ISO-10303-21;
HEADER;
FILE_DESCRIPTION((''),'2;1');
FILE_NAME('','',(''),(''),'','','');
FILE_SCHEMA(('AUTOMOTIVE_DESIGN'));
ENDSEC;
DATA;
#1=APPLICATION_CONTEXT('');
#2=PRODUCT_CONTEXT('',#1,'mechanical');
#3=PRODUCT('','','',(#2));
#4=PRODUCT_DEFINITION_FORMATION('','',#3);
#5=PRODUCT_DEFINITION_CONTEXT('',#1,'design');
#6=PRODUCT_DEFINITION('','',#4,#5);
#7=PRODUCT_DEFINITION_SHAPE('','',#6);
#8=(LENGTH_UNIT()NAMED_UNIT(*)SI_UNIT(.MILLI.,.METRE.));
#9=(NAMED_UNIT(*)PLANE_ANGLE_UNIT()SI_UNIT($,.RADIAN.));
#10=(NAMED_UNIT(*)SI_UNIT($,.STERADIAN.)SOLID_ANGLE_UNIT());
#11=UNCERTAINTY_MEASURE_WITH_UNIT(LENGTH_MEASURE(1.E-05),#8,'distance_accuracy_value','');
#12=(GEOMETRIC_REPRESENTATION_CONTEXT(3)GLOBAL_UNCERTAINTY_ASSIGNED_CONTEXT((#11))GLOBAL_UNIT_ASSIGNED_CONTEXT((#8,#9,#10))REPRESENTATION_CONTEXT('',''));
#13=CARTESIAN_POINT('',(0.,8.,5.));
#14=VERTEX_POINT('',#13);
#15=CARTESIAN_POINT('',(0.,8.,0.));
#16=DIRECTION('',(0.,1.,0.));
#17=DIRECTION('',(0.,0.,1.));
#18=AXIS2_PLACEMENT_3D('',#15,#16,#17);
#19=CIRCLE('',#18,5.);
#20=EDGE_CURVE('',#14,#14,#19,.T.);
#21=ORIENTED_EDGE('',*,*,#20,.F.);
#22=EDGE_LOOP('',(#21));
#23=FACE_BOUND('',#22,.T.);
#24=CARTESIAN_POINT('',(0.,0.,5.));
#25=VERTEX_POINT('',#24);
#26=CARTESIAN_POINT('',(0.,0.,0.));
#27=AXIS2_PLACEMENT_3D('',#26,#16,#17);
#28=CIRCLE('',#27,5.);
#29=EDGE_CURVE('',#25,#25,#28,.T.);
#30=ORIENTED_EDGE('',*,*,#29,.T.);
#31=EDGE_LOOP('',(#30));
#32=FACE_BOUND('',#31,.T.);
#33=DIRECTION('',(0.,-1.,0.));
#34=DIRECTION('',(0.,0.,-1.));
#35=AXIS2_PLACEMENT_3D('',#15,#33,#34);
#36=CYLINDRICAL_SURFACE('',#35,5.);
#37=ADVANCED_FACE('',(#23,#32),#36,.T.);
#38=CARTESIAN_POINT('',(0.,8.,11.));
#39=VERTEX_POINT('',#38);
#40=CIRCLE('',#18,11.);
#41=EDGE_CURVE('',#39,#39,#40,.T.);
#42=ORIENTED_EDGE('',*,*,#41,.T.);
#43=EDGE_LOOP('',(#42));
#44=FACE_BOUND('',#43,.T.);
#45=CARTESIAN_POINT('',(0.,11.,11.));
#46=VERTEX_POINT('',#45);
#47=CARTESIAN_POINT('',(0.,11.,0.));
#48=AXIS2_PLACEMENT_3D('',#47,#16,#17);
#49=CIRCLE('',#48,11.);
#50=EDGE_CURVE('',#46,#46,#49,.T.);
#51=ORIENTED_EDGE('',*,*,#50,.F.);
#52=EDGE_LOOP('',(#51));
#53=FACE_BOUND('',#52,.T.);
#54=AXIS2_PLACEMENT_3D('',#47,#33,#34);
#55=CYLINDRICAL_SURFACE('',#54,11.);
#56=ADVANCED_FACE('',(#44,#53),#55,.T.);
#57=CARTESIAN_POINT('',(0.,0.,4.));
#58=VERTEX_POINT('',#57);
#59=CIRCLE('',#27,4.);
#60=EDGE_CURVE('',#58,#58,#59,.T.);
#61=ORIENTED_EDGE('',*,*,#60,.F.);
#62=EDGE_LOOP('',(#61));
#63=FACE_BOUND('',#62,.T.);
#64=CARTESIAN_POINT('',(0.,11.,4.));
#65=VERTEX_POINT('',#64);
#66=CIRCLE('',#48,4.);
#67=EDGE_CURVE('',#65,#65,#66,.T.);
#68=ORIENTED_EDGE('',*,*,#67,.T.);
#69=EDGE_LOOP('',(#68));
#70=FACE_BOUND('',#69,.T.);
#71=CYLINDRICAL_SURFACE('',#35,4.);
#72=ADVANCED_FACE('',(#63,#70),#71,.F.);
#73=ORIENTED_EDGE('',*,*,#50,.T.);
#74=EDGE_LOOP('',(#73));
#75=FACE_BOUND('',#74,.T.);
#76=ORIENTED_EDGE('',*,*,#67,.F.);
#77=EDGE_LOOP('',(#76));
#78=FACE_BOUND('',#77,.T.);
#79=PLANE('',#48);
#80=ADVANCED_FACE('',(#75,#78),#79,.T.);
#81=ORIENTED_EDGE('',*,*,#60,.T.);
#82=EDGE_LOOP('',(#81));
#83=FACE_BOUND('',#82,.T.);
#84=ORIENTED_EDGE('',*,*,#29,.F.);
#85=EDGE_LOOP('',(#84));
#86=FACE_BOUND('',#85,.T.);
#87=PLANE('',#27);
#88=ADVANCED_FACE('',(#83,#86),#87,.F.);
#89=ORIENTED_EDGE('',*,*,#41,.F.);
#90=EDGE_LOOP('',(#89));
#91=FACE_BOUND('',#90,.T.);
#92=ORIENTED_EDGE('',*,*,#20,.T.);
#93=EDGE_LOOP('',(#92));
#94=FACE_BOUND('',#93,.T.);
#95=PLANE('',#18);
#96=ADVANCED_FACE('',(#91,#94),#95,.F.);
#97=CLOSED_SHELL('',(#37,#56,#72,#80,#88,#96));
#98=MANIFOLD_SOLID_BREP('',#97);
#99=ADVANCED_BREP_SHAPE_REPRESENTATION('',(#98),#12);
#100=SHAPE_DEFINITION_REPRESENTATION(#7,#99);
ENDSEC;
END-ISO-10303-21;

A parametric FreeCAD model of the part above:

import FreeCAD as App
import Part
import Sketcher

V = App.Vector

doc = App.newDocument("Part")
body = doc.addObject("PartDesign::Body", "Body")

# Sketch on XZ plane
sketch1 = body.newObject("Sketcher::SketchObject", "Sketch")
sketch1.AttachmentSupport = (doc.getObject("XZ_Plane"), [""])
sketch1.MapMode = "FlatFace"
sketch1.addGeometry([
    Part.Circle(V(0, 0, 0), V(0, 0, 1), 5),
    Part.Circle(V(0, 0, 0), V(0, 0, 1), 4),
], False)
sketch1.addConstraint([
    Sketcher.Constraint("Coincident", 0, 3, -1, 1),
    Sketcher.Constraint("Coincident", 1, 3, -1, 1),
    Sketcher.Constraint("Diameter", 0, 10.0),
    Sketcher.Constraint("Diameter", 1, 8.0),
])
pad1 = body.newObject("PartDesign::Pad", "Pad")
pad1.Profile = sketch1
pad1.Length = 8
pad1.Reversed = True

# Sketch on XZ plane
sketch2 = body.newObject("Sketcher::SketchObject", "Sketch001")
sketch2.AttachmentSupport = (doc.getObject("XZ_Plane"), [""])
sketch2.MapMode = "FlatFace"
sketch2.AttachmentOffset = App.Placement(V(0, 0, -8), App.Rotation())
sketch2.addGeometry([
    Part.Circle(V(0, 0, 0), V(0, 0, 1), 11),
    Part.Circle(V(0, 0, 0), V(0, 0, 1), 4),
], False)
sketch2.addConstraint([
    Sketcher.Constraint("Coincident", 0, 3, -1, 1),
    Sketcher.Constraint("Coincident", 1, 3, -1, 1),
    Sketcher.Constraint("Diameter", 0, 22.0),
    Sketcher.Constraint("Diameter", 1, 8.0),
])
pad2 = body.newObject("PartDesign::Pad", "Pad001")
pad2.Profile = sketch2
pad2.Length = 3
pad2.Reversed = True

doc.recompute()
